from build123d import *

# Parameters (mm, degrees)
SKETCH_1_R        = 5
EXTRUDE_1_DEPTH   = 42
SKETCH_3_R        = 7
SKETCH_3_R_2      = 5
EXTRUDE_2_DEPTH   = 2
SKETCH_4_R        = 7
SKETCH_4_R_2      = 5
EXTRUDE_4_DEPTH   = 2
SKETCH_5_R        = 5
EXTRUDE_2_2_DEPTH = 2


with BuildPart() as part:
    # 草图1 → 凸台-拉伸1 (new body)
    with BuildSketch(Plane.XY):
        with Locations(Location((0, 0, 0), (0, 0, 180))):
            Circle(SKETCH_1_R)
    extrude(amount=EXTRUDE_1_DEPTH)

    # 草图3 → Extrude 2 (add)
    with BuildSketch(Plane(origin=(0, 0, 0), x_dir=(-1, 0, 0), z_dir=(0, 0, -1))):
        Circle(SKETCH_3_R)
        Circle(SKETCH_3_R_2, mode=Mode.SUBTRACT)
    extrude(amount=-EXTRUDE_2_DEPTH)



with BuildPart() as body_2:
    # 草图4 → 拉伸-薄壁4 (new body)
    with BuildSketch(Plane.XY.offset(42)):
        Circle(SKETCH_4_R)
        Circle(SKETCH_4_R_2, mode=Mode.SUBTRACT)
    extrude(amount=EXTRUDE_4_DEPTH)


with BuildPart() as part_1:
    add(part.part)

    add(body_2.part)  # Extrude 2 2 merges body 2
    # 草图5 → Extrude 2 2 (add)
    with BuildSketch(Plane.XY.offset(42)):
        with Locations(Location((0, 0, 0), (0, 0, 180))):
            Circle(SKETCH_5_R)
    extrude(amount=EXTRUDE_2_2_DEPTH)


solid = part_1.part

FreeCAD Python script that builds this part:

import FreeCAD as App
import Part
import Sketcher

V = App.Vector

doc = App.newDocument("Part")
body = doc.addObject("PartDesign::Body", "Body")

# Sketch on XY plane
sketch1 = doc.addObject("Sketcher::SketchObject", "Sketch")
body.addObject(sketch1)
sketch1.AttachmentSupport = (doc.XY_Plane, [""])
sketch1.MapMode = "FlatFace"
sketch1.addGeometry(Part.Circle(V(0, 0, 0), V(0, 0, 1), 5), False)
sketch1.addConstraint([
    Sketcher.Constraint("Coincident", 0, 3, -1, 1),
    Sketcher.Constraint("Diameter", 0, 10.0),
])
pad1 = doc.addObject("PartDesign::Pad", "Pad")
body.addObject(pad1)
pad1.Profile = sketch1
pad1.Length = 42

# Sketch on XY plane
sketch2 = doc.addObject("Sketcher::SketchObject", "Sketch001")
body.addObject(sketch2)
sketch2.AttachmentSupport = (doc.XY_Plane, [""])
sketch2.MapMode = "FlatFace"
sketch2.addGeometry([
    Part.Circle(V(0, 0, 0), V(0, 0, 1), 7),
    Part.Circle(V(0, 0, 0), V(0, 0, 1), 5),
], False)
sketch2.addConstraint([
    Sketcher.Constraint("Coincident", 0, 3, -1, 1),
    Sketcher.Constraint("Coincident", 1, 3, -1, 1),
    Sketcher.Constraint("Diameter", 0, 14.0),
    Sketcher.Constraint("Diameter", 1, 10.0),
])
pad2 = doc.addObject("PartDesign::Pad", "Pad001")
body.addObject(pad2)
pad2.Profile = sketch2
pad2.Length = 2
body2 = doc.addObject("PartDesign::Body", "Body001")

# Sketch on XY plane
sketch3 = doc.addObject("Sketcher::SketchObject", "Sketch002")
body2.addObject(sketch3)
sketch3.AttachmentSupport = (doc.getObject("XY_Plane001"), [""])
sketch3.MapMode = "FlatFace"
sketch3.AttachmentOffset = App.Placement(V(0, 0, 42), App.Rotation())
sketch3.addGeometry([
    Part.Circle(V(0, 0, 0), V(0, 0, 1), 7),
    Part.Circle(V(0, 0, 0), V(0, 0, 1), 5),
], False)
sketch3.addConstraint([
    Sketcher.Constraint("Coincident", 0, 3, -1, 1),
    Sketcher.Constraint("Coincident", 1, 3, -1, 1),
    Sketcher.Constraint("Diameter", 0, 14.0),
    Sketcher.Constraint("Diameter", 1, 10.0),
])
pad3 = doc.addObject("PartDesign::Pad", "Pad002")
body2.addObject(pad3)
pad3.Profile = sketch3
pad3.Length = 2
body.AllowCompound = True
doc.recompute()

boolean = doc.addObject("PartDesign::Boolean", "Boolean")
body.addObject(boolean)
boolean.Type = "Fuse"
boolean.addObjects([body2])

# Sketch on XY plane
sketch4 = doc.addObject("Sketcher::SketchObject", "Sketch003")
body.addObject(sketch4)
sketch4.AttachmentSupport = (doc.XY_Plane, [""])
sketch4.MapMode = "FlatFace"
sketch4.AttachmentOffset = App.Placement(V(0, 0, 42), App.Rotation())
sketch4.addGeometry(Part.Circle(V(0, 0, 0), V(0, 0, 1), 5), False)
sketch4.addConstraint([
    Sketcher.Constraint("Coincident", 0, 3, -1, 1),
    Sketcher.Constraint("Diameter", 0, 10.0),
])
pad4 = doc.addObject("PartDesign::Pad", "Pad003")
body.addObject(pad4)
pad4.Profile = sketch4
pad4.Length = 2

doc.recompute()
